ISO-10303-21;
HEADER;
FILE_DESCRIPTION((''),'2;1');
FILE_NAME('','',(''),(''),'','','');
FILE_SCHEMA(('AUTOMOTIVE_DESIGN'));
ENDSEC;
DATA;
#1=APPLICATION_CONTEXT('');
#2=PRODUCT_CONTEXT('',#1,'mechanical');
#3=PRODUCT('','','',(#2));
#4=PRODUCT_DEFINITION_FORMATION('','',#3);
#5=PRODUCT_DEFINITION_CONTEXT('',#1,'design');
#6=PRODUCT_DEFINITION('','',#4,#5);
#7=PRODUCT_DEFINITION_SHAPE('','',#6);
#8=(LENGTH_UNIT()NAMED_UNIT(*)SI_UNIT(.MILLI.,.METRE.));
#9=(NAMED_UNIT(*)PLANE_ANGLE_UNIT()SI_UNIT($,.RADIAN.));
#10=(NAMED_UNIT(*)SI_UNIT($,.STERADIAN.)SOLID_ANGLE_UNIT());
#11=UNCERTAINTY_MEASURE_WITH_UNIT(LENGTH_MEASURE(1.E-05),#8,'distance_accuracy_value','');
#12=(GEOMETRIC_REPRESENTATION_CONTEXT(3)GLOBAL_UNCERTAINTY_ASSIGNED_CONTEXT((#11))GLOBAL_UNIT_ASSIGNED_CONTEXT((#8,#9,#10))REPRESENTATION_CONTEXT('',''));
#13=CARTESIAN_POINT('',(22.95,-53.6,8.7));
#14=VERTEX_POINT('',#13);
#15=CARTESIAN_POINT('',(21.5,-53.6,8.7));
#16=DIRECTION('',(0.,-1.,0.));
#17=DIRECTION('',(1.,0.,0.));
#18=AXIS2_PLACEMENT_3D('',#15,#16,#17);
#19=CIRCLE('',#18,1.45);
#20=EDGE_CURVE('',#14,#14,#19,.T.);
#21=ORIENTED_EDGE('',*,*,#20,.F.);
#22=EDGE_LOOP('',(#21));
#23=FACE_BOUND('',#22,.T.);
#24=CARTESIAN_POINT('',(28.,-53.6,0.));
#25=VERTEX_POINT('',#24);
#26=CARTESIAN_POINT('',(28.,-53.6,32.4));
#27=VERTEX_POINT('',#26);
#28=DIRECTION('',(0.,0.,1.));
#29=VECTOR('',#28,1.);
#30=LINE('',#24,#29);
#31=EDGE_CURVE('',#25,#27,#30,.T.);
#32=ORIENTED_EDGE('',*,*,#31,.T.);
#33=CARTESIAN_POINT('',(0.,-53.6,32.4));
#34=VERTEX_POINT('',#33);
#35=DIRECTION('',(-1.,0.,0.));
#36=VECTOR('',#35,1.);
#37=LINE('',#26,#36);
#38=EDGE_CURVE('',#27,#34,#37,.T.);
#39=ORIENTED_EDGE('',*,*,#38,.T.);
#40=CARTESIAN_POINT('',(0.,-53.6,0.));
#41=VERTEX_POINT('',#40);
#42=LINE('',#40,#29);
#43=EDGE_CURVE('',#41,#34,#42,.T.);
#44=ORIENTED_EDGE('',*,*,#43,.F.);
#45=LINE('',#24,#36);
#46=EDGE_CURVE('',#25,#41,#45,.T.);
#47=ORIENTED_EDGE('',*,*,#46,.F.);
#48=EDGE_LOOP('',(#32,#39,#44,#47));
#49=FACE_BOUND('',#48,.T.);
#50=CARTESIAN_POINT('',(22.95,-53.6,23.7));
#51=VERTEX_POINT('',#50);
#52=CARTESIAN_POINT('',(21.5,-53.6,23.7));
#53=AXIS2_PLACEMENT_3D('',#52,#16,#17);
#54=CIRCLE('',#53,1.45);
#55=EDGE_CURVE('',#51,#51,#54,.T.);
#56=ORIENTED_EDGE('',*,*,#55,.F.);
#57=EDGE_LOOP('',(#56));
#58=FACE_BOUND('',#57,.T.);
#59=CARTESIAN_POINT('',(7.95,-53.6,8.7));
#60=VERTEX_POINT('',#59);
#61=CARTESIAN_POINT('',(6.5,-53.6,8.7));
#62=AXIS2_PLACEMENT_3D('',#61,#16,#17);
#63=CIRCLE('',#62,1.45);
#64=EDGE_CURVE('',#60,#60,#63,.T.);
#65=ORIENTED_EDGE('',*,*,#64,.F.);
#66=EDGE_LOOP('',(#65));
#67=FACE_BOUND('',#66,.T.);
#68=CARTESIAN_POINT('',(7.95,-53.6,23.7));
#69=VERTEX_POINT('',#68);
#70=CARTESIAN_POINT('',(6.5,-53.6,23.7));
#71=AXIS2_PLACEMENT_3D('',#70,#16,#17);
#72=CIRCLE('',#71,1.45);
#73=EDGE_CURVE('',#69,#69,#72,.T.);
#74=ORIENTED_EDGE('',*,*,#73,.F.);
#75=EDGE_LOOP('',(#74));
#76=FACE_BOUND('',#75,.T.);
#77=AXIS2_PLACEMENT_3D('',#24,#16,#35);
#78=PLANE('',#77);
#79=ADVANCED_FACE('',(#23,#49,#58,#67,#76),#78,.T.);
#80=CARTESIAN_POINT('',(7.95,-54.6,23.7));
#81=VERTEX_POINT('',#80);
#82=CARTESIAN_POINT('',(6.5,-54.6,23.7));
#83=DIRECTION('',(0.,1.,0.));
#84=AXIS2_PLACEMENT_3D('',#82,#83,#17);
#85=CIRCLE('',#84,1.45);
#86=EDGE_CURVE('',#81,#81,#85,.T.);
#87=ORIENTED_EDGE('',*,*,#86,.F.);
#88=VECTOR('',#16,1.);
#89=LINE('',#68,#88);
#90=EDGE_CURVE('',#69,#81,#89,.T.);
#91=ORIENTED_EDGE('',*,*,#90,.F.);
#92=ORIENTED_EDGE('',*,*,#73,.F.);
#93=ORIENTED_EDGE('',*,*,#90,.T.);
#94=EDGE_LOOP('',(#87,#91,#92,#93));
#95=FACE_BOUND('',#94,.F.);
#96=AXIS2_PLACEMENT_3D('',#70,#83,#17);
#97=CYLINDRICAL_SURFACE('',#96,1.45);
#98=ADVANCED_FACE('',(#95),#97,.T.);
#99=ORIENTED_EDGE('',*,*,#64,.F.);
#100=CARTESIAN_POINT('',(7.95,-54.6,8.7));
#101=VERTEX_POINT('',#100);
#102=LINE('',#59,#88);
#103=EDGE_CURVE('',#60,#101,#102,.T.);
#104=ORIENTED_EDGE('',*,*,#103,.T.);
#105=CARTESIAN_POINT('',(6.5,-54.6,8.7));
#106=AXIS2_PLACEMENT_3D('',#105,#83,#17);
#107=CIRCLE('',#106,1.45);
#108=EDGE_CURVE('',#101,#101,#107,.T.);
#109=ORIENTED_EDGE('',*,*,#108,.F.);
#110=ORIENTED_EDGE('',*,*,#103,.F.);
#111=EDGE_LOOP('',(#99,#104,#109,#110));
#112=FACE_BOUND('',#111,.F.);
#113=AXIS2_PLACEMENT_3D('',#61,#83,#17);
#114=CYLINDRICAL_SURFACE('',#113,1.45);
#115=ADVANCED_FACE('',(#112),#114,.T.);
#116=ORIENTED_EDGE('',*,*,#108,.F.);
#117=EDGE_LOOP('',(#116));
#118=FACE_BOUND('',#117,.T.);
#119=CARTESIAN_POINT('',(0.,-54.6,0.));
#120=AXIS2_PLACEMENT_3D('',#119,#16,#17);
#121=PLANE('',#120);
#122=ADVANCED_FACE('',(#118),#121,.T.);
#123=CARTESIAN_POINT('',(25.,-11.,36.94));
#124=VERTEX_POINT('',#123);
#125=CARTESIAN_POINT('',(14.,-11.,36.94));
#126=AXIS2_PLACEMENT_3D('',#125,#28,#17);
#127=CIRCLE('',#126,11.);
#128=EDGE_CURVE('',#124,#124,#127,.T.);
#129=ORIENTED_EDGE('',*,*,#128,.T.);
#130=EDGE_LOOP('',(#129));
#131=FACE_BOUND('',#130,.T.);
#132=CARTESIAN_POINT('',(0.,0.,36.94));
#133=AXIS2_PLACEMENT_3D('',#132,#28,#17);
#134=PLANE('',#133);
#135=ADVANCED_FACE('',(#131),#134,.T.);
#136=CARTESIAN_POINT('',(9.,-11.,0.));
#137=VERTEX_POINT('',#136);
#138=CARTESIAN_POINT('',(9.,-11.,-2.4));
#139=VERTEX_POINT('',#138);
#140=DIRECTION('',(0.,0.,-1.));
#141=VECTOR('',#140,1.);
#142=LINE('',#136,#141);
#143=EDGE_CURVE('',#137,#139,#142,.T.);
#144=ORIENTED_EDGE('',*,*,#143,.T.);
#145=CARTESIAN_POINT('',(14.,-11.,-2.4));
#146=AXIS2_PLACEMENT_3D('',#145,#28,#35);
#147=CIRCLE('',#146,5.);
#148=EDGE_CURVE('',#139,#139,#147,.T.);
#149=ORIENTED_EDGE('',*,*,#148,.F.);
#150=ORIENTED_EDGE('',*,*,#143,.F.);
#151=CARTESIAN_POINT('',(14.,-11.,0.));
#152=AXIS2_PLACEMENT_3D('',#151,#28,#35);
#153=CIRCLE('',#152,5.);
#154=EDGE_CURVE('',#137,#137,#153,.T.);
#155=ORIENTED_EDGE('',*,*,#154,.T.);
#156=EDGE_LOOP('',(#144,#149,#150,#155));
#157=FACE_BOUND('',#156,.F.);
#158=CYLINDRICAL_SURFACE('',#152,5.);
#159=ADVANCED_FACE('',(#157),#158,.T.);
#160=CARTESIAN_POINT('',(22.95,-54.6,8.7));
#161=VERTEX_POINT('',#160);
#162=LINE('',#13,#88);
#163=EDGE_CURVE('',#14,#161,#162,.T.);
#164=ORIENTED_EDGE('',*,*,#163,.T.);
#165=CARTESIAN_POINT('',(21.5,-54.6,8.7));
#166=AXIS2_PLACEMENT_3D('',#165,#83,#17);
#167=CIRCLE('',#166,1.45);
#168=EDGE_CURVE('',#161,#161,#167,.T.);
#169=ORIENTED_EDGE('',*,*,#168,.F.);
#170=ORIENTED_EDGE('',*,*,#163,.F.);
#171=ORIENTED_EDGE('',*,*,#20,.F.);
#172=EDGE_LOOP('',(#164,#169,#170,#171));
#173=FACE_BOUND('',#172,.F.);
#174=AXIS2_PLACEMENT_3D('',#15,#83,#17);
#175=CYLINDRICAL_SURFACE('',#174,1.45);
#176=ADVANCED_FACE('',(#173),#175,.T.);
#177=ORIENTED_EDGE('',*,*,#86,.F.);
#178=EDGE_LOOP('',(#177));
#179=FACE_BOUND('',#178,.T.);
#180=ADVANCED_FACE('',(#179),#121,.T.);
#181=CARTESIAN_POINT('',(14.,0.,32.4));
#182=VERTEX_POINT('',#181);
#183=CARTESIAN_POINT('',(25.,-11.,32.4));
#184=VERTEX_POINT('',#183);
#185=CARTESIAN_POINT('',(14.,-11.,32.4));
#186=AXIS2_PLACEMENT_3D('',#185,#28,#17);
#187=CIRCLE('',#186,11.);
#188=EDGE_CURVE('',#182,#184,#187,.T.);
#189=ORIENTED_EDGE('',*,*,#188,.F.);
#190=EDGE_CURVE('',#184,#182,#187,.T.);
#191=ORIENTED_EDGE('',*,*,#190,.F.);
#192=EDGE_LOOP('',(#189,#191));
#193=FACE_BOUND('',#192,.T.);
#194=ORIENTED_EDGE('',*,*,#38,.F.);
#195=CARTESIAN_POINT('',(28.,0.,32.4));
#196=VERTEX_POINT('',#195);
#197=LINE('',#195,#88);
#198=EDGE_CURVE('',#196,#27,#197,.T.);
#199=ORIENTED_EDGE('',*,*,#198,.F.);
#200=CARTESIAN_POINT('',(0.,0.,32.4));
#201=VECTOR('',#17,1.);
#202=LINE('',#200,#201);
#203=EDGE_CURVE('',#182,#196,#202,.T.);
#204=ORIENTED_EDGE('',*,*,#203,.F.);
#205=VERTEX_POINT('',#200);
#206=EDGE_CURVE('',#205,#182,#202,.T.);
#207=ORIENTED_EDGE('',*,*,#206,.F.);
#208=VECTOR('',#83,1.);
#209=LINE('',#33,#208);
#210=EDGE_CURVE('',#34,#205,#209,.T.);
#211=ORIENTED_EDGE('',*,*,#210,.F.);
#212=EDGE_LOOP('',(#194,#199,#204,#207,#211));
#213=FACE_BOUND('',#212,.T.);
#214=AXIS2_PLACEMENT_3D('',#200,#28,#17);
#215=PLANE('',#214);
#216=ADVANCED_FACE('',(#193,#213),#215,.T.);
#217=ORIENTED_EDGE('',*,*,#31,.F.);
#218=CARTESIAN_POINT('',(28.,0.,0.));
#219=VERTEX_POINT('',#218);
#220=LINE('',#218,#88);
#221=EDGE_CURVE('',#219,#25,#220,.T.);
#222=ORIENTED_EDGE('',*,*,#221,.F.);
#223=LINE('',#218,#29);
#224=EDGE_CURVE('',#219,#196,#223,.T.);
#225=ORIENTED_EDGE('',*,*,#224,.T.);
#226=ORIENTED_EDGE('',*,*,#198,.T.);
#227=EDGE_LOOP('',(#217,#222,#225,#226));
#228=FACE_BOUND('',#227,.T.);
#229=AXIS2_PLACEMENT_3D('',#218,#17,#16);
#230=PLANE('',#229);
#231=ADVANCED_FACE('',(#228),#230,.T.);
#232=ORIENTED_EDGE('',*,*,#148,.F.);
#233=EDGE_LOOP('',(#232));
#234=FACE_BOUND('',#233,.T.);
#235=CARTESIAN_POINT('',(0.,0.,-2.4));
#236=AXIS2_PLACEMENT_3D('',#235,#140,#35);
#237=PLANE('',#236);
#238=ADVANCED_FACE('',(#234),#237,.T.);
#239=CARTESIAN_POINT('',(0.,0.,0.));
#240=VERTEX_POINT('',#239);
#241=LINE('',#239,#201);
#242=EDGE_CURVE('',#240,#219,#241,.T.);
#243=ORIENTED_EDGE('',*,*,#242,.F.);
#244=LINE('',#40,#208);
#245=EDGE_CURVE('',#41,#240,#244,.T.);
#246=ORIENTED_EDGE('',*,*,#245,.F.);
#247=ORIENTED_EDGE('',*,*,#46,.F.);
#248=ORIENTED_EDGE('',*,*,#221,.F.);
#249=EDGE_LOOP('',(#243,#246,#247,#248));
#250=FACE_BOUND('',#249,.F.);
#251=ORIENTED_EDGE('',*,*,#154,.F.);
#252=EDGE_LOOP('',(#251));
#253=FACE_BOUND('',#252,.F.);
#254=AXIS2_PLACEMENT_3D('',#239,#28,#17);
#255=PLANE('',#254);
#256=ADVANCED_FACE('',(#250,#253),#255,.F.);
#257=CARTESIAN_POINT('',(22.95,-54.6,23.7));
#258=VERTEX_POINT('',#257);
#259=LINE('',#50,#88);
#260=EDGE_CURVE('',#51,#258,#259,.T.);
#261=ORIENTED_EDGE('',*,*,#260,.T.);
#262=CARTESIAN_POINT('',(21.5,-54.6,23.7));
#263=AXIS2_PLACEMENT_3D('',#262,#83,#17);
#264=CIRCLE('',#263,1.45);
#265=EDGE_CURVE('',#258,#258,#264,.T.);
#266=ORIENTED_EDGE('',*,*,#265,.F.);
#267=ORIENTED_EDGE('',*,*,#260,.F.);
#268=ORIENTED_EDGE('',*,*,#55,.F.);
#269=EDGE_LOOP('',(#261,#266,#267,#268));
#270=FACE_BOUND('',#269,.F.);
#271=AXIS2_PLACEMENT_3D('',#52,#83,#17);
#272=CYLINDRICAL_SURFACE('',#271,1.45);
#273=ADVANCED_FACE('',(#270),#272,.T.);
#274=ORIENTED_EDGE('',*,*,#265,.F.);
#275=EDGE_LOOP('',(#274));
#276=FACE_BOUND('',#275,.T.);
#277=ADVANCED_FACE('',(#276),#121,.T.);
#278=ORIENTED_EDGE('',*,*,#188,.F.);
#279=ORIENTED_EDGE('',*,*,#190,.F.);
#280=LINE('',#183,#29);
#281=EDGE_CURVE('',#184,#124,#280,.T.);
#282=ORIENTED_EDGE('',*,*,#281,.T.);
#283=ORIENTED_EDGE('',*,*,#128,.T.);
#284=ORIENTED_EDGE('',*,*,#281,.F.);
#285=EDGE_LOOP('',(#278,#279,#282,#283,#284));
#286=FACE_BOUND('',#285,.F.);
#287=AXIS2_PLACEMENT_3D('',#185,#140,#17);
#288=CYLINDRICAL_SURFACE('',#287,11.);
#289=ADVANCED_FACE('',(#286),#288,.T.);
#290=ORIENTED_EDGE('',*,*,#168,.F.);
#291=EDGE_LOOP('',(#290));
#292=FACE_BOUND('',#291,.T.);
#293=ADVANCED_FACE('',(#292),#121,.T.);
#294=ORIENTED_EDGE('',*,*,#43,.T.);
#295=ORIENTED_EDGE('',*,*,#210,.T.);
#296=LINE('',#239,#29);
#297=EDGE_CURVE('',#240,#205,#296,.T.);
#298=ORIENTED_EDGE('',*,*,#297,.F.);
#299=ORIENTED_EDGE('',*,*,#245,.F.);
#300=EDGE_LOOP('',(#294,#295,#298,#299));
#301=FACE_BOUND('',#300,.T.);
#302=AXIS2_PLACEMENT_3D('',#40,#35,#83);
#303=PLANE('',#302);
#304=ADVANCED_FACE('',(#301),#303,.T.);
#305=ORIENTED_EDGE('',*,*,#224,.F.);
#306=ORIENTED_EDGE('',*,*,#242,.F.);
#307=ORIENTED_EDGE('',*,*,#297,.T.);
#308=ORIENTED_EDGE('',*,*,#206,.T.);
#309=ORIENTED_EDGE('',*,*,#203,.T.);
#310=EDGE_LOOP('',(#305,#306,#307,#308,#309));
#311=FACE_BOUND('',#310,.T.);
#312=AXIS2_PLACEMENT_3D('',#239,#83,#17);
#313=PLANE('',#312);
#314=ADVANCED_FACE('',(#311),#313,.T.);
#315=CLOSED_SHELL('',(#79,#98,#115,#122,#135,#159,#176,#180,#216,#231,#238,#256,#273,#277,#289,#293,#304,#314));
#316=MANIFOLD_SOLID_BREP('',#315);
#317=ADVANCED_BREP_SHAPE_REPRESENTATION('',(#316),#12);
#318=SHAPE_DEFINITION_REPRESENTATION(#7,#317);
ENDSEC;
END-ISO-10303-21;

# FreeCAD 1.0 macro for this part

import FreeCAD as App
import Part
import Sketcher

V = App.Vector

doc = App.newDocument("Part")
params = doc.addObject("Spreadsheet::Sheet", "Params")
for row, (alias, value) in enumerate([
    ("sketch1_width", "28 mm"),
    ("sketch1_height", "53.6 mm"),
    ("pad1_length", "32.4 mm"),
    ("sketch2_diameter", "22 mm"),
    ("pad2_length", "4.54 mm"),
    ("sketch3_diameter", "10 mm"),
    ("pad3_length", "2.4 mm"),
    ("sketch4_diameter", "2.9 mm"),
    ("pad4_length", "1 mm"),
], start=1):
    params.set(f"A{row}", alias)
    params.set(f"B{row}", "=" + value)
    params.setAlias(f"B{row}", alias)

body = doc.addObject("PartDesign::Body", "Body")

sketch1 = body.newObject("Sketcher::SketchObject", "Sketch")
sketch1.AttachmentSupport = (doc.getObject("XY_Plane"), [""])
sketch1.MapMode = "FlatFace"
sketch1.addGeometry([
    Part.LineSegment(V(28, 0, 0), V(0, 0, 0)),
    Part.LineSegment(V(0, 0, 0), V(0, -54, 0)),
    Part.LineSegment(V(0, -54, 0), V(28, -54, 0)),
    Part.LineSegment(V(28, -54, 0), V(28, 0, 0)),
], False)
sketch1.addConstraint([
    Sketcher.Constraint("Coincident", 0, 2, 1, 1),
    Sketcher.Constraint("Coincident", 1, 2, 2, 1),
    Sketcher.Constraint("Coincident", 2, 2, 3, 1),
    Sketcher.Constraint("Coincident", 3, 2, 0, 1),
    Sketcher.Constraint("Horizontal", 0),
    Sketcher.Constraint("Vertical", 1),
    Sketcher.Constraint("Horizontal", 2),
    Sketcher.Constraint("Vertical", 3),
    Sketcher.Constraint("Coincident", 0, 2, -1, 1),
    Sketcher.Constraint("DistanceX", 0, 2, 0, 1, 28.0),
    Sketcher.Constraint("DistanceY", 1, 2, 1, 1, 53.6),
])
sketch1.setExpression("Constraints[9]", "Params.sketch1_width")
sketch1.setExpression("Constraints[10]", "Params.sketch1_height")
pad1 = body.newObject("PartDesign::Pad", "Pad")
pad1.Profile = sketch1
pad1.setExpression("Length", "Params.pad1_length")

sketch2 = body.newObject("Sketcher::SketchObject", "Sketch001")
sketch2.AttachmentSupport = (doc.getObject("XY_Plane"), [""])
sketch2.MapMode = "FlatFace"
sketch2.AttachmentOffset = App.Placement(V(0, 0, 32.4), App.Rotation())
sketch2.addGeometry(Part.Circle(V(14, -11, 0), V(0, 0, 1), 11), False)
sketch2.addConstraint([
    Sketcher.Constraint("Diameter", 0, 22.0),
    Sketcher.Constraint("DistanceX", -1, 1, 0, 3, 14.0),
    Sketcher.Constraint("DistanceY", 0, 3, -1, 1, 11.0),
])
sketch2.setExpression("Constraints[0]", "Params.sketch2_diameter")
pad2 = body.newObject("PartDesign::Pad", "Pad001")
pad2.Profile = sketch2
pad2.setExpression("Length", "Params.pad2_length")

sketch3 = body.newObject("Sketcher::SketchObject", "Sketch002")
sketch3.AttachmentSupport = (doc.getObject("XY_Plane"), [""])
sketch3.MapMode = "FlatFace"
sketch3.addGeometry(Part.Circle(V(14, -11, 0), V(0, 0, 1), 5), False)
sketch3.addConstraint([
    Sketcher.Constraint("Diameter", 0, 10.0),
    Sketcher.Constraint("DistanceX", -1, 1, 0, 3, 14.0),
    Sketcher.Constraint("DistanceY", 0, 3, -1, 1, 11.0),
])
sketch3.setExpression("Constraints[0]", "Params.sketch3_diameter")
pad3 = body.newObject("PartDesign::Pad", "Pad002")
pad3.Profile = sketch3
pad3.setExpression("Length", "Params.pad3_length")
pad3.Reversed = True

sketch4 = body.newObject("Sketcher::SketchObject", "Sketch003")
sketch4.AttachmentSupport = (doc.getObject("XZ_Plane"), [""])
sketch4.MapMode = "FlatFace"
sketch4.AttachmentOffset = App.Placement(V(0, 0, 53.6), App.Rotation())
sketch4.addGeometry([
    Part.Circle(V(21.5, 23.7, 0), V(0, 0, 1), 1.4),
    Part.Circle(V(21.5, 8.7, 0), V(0, 0, 1), 1.4),
    Part.Circle(V(6.5, 8.7, 0), V(0, 0, 1), 1.4),
    Part.Circle(V(6.5, 23.7, 0), V(0, 0, 1), 1.4),
], False)
sketch4.addConstraint([
    Sketcher.Constraint("Equal", 0, 1),
    Sketcher.Constraint("Equal", 1, 2),
    Sketcher.Constraint("Equal", 2, 3),
    Sketcher.Constraint("Horizontal", 1, 3, 2, 3),
    Sketcher.Constraint("Horizontal", 0, 3, 3, 3),
    Sketcher.Constraint("Vertical", 0, 3, 1, 3),
    Sketcher.Constraint("Vertical", 2, 3, 3, 3),
    Sketcher.Constraint("Diameter", 0, 2.9),
    Sketcher.Constraint("DistanceY", 1, 3, 0, 3, 15.0),
    Sketcher.Constraint("DistanceX", 2, 3, 1, 3, 15.0),
    Sketcher.Constraint("DistanceX", -1, 1, 0, 3, 21.5),
    Sketcher.Constraint("DistanceY", -1, 1, 0, 3, 23.7),
])
sketch4.setExpression("Constraints[7]", "Params.sketch4_diameter")
pad4 = body.newObject("PartDesign::Pad", "Pad003")
pad4.Profile = sketch4
pad4.setExpression("Length", "Params.pad4_length")

doc.recompute()
